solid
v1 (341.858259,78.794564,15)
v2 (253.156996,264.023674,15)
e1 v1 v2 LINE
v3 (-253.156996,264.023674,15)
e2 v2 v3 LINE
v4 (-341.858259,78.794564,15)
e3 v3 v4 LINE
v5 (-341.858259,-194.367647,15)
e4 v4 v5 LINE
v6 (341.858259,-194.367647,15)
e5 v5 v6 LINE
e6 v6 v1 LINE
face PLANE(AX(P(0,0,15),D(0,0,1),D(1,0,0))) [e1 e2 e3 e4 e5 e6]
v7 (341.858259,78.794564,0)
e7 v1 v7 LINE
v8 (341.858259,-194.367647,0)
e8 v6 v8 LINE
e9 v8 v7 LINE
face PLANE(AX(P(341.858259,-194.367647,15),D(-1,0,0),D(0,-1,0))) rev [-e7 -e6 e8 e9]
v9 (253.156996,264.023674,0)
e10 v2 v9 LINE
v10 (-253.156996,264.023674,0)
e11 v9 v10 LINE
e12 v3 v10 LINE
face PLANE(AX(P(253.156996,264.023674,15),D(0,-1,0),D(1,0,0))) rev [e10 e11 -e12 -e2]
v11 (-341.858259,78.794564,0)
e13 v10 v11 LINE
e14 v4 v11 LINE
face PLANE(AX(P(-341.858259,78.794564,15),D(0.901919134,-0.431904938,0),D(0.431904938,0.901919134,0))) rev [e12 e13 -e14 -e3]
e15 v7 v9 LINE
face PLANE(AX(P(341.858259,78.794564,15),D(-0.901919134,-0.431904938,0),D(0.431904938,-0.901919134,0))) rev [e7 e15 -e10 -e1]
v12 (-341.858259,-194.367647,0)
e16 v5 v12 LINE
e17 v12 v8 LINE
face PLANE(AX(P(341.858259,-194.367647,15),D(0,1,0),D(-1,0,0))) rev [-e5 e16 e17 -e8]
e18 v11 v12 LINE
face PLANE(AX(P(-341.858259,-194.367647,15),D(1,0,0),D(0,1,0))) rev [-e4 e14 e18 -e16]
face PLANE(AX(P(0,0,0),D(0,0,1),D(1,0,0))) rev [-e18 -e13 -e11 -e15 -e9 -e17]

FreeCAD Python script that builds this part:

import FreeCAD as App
import Part
import Sketcher
Q = App.Units.Quantity


def add_polygon(sketch, points):
    """Adds a closed chain of lines whose ends are joined by coincident constraints."""
    first, n = sketch.GeometryCount, len(points)
    for a, b in zip(points, points[1:] + points[:1]):
        sketch.addGeometry(Part.LineSegment(App.Vector(*a, 0), App.Vector(*b, 0)), False)
    for i in range(n):
        sketch.addConstraint(Sketcher.Constraint("Coincident", first + i, 2, first + (i + 1) % n, 1))

doc = App.newDocument("Part")
body = doc.addObject("PartDesign::Body", "Body")

# Sketch on XY plane
sketch1 = body.newObject("Sketcher::SketchObject", "Sketch")
sketch1.AttachmentSupport = (doc.getObject("XY_Plane"), [""])
sketch1.MapMode = "FlatFace"
add_polygon(sketch1, [(-341.858259, -194.367647), (341.858259, -194.367647), (341.858259, 78.794564), (253.156996, 264.023674), (-253.156996, 264.023674), (-341.858259, 78.794564)])  # lines 0-5
sketch1.addConstraint([
    Sketcher.Constraint("Horizontal", 0),
    Sketcher.Constraint("Vertical", 1),
    Sketcher.Constraint("Horizontal", 3),
    Sketcher.Constraint("Vertical", 5),
    Sketcher.Constraint("Symmetric", 1, 2, 4, 2, -2),
    Sketcher.Constraint("Equal", 2, 4),
    Sketcher.Constraint("DistanceX", 0, 1, 0, 2, Q("683.716519 mm")),
    Sketcher.Constraint("DistanceX", 3, 2, 3, 1, Q("506.313991 mm")),
    Sketcher.Constraint("DistanceY", 1, 1, 1, 2, Q("273.162211 mm")),
    Sketcher.Constraint("DistanceY", 1, 2, 2, 2, Q("185.22911 mm")),
    Sketcher.Constraint("DistanceY", 0, 2, -1, 1, Q("194.367647 mm")),
])
pad1 = body.newObject("PartDesign::Pad", "Pad")
pad1.Profile = sketch1
pad1.Length = 15

doc.recompute()
